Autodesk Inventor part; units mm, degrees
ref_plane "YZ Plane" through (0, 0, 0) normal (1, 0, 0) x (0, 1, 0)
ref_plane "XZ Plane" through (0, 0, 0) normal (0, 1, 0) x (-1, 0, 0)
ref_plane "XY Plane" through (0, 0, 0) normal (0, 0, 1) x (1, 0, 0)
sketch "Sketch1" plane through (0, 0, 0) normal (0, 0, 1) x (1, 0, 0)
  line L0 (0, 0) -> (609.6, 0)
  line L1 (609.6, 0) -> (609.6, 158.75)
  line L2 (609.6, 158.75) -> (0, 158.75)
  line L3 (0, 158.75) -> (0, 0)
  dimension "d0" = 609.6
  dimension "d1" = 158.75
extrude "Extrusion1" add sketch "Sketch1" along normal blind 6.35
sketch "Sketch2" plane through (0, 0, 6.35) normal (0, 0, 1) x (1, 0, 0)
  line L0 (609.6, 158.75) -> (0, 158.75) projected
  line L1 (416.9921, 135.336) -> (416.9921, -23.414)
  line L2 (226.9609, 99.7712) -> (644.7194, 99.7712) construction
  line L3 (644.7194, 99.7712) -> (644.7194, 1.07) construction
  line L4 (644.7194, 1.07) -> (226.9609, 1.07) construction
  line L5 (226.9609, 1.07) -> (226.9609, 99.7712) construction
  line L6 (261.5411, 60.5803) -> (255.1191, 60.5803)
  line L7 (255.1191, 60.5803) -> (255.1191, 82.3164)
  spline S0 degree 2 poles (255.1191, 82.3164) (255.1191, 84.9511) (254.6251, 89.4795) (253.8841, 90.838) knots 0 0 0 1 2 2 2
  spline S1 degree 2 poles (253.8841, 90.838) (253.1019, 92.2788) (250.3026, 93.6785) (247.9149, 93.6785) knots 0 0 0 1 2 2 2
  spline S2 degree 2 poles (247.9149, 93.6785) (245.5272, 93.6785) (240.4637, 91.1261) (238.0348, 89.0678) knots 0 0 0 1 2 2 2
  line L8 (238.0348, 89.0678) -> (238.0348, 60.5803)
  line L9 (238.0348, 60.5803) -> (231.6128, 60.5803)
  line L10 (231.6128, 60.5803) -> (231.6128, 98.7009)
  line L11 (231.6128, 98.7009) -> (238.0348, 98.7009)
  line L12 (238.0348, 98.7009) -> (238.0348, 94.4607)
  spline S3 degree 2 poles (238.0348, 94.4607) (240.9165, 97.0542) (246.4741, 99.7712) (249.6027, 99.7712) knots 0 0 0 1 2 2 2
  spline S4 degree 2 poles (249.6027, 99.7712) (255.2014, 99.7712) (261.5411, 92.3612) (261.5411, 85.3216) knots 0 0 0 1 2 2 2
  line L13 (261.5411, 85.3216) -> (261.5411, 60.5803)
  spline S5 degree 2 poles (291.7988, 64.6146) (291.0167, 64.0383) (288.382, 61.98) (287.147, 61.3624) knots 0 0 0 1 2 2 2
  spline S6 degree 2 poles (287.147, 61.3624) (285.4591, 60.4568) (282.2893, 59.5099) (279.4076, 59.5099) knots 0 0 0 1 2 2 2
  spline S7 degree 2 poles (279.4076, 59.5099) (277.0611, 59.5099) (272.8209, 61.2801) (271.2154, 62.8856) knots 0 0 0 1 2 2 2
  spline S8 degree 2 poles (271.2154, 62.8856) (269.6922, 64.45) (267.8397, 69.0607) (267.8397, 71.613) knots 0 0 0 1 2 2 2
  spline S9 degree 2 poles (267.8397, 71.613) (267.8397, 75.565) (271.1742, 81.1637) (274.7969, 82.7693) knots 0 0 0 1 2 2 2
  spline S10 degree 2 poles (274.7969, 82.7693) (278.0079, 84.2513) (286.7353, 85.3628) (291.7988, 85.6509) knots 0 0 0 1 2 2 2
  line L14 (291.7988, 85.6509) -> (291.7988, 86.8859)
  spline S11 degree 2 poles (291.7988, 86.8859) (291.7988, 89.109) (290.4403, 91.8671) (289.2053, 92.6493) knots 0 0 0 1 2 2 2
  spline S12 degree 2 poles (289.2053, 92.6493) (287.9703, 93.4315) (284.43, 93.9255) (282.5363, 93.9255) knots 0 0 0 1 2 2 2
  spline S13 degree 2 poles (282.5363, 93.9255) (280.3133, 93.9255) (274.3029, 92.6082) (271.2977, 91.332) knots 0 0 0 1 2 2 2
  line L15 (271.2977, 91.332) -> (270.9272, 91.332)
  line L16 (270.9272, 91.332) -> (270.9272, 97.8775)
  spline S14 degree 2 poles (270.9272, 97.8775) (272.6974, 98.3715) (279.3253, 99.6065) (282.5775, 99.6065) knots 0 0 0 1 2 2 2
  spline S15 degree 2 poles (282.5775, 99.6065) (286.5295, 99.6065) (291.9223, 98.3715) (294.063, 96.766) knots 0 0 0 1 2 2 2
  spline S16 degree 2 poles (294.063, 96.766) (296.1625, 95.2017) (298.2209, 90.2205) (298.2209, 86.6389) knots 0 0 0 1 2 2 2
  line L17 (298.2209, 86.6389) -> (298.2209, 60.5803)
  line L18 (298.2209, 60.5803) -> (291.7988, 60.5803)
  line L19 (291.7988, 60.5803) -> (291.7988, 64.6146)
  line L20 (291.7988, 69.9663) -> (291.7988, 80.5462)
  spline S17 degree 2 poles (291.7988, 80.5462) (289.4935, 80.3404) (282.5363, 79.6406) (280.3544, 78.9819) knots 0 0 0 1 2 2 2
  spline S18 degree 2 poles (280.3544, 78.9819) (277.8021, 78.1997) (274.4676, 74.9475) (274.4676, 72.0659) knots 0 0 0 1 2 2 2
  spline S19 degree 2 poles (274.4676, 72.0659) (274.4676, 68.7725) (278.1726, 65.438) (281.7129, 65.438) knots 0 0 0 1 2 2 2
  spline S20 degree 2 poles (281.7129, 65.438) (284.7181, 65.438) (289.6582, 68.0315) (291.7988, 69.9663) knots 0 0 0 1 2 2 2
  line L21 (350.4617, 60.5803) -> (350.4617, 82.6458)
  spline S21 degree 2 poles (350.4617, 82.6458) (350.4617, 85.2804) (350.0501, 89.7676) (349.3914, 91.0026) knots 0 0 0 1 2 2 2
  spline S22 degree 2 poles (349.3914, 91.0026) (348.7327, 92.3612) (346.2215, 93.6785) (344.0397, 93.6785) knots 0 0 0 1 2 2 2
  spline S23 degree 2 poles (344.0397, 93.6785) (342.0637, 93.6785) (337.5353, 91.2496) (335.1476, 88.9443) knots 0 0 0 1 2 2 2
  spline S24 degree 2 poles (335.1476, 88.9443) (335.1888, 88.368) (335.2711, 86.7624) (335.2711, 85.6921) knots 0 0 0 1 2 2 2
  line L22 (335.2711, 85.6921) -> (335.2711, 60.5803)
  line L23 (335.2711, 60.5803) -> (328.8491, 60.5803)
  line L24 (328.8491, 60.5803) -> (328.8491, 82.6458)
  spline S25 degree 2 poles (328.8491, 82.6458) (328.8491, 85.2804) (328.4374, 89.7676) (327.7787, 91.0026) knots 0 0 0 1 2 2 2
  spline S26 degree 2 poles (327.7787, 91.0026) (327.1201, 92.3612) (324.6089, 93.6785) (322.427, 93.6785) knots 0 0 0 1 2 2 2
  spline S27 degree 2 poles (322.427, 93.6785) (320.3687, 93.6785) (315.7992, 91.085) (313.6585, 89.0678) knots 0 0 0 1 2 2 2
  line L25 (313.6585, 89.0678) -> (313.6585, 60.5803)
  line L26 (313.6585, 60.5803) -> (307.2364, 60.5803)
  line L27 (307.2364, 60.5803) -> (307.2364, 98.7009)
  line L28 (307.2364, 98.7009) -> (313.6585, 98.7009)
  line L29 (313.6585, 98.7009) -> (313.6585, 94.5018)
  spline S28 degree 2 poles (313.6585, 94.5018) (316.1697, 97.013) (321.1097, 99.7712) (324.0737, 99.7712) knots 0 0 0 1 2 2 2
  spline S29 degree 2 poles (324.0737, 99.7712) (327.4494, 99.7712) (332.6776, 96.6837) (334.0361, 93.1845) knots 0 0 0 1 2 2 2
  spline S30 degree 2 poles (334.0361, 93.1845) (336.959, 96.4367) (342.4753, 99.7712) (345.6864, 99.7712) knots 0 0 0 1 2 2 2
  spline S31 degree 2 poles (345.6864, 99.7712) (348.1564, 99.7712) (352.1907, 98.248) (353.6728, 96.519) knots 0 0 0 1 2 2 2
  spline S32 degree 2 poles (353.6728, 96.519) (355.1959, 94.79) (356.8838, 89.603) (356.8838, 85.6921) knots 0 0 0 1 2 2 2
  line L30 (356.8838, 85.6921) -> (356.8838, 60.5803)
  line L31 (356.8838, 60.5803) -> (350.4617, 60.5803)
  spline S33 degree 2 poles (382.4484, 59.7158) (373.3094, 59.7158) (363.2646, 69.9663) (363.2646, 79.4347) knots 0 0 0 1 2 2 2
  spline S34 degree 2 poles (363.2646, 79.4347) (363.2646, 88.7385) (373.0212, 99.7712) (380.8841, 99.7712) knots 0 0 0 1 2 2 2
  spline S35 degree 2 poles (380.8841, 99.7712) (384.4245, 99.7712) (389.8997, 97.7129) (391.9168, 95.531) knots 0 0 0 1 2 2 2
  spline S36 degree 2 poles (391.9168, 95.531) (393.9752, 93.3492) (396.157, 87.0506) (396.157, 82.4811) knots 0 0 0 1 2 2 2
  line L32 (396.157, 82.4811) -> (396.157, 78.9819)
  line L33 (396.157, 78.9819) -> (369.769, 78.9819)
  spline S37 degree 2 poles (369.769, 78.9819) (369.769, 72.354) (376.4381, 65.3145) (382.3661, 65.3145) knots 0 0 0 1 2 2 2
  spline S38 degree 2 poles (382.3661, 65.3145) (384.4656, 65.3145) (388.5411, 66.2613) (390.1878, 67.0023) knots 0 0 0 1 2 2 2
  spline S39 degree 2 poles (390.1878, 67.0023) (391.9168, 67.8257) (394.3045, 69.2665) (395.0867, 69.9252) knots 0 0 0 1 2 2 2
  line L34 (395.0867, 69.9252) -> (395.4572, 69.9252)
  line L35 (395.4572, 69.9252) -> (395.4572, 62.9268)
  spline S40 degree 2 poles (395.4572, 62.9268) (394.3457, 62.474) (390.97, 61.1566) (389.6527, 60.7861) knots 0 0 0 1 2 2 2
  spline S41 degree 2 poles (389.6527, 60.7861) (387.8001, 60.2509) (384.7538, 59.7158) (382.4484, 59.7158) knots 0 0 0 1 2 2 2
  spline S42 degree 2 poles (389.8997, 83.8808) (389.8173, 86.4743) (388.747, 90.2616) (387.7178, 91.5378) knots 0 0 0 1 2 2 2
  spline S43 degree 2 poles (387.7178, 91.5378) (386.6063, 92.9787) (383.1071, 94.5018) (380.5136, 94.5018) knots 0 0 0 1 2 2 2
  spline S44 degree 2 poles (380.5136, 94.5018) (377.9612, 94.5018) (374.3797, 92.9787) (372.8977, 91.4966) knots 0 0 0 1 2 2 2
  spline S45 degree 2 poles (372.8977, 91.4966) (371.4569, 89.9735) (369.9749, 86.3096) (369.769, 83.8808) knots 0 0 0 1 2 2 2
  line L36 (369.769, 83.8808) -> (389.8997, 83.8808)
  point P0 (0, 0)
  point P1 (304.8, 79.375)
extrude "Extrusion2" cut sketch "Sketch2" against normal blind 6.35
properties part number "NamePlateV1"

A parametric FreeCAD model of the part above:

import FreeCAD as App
import Part
import Sketcher
from FreeCAD import Vector
Q = App.Units.Quantity

doc = App.newDocument("Part")
body = doc.addObject("PartDesign::Body", "Body")
body.AllowCompound = True

sketch1 = doc.addObject("Sketcher::SketchObject", "Sketch")
body.addObject(sketch1)
sketch1.AttachmentSupport = (doc.XY_Plane, [""])
sketch1.MapMode = "FlatFace"
sketch1.addGeometry([
    Part.LineSegment(Vector(0, 158.75, 0), Vector(0, 0, 0)),
    Part.LineSegment(Vector(0, 0, 0), Vector(609.6, 0, 0)),
    Part.LineSegment(Vector(609.6, 0, 0), Vector(609.6, 158.75, 0)),
    Part.LineSegment(Vector(609.6, 158.75, 0), Vector(0, 158.75, 0)),
], False)
sketch1.addConstraint([
    Sketcher.Constraint("Coincident", 0, 2, 1, 1),
    Sketcher.Constraint("Coincident", 1, 2, 2, 1),
    Sketcher.Constraint("Coincident", 2, 2, 3, 1),
    Sketcher.Constraint("Coincident", 3, 2, 0, 1),
    Sketcher.Constraint("Vertical", 0),
    Sketcher.Constraint("Horizontal", 1),
    Sketcher.Constraint("Vertical", 2),
    Sketcher.Constraint("Horizontal", 3),
    Sketcher.Constraint("Coincident", 0, 2, -1, 1),
    Sketcher.Constraint("DistanceX", 1, 1, 1, 2, Q("24 in")),
    Sketcher.Constraint("DistanceY", 0, 2, 0, 1, Q("6.25 in")),
])
pad1 = doc.addObject("PartDesign::Pad", "Pad")
body.addObject(pad1)
pad1.Profile = sketch1
pad1.Length = Q("0.25 in")

sketch2 = doc.addObject("Sketcher::SketchObject", "Sketch001")
body.addObject(sketch2)
sketch2.AttachmentSupport = (doc.XY_Plane, [""])
sketch2.MapMode = "FlatFace"
sketch2.AttachmentOffset = App.Placement(Vector(0, 0, 0.25 * 25.4), App.Rotation())
sketch2.addGeometry([
    Part.LineSegment(Vector(255.1191, 60.5803, 0), Vector(261.5411, 60.5803, 0)),
    Part.LineSegment(Vector(261.5411, 60.5803, 0), Vector(261.5411, 85.3216, 0)),
    Part.BSplineCurve([Vector(249.6027, 99.7712, 0), Vector(255.2014, 99.7712, 0), Vector(261.5411, 92.3612, 0), Vector(261.5411, 85.3216, 0)], [3, 1, 3], [0, 1, 2], False, 2, [1, 1, 1, 1], False),
    Part.BSplineCurve([Vector(238.0348, 94.4607, 0), Vector(240.9165, 97.0542, 0), Vector(246.4741, 99.7712, 0), Vector(249.6027, 99.7712, 0)], [3, 1, 3], [0, 1, 2], False, 2, [1, 1, 1, 1], False),
    Part.LineSegment(Vector(238.0348, 94.4607, 0), Vector(238.0348, 98.7009, 0)),
    Part.LineSegment(Vector(238.0348, 98.7009, 0), Vector(231.6128, 98.7009, 0)),
    Part.LineSegment(Vector(231.6128, 98.7009, 0), Vector(231.6128, 60.5803, 0)),
    Part.LineSegment(Vector(231.6128, 60.5803, 0), Vector(238.0348, 60.5803, 0)),
    Part.LineSegment(Vector(238.0348, 60.5803, 0), Vector(238.0348, 89.0678, 0)),
    Part.BSplineCurve([Vector(247.9149, 93.6785, 0), Vector(245.5272, 93.6785, 0), Vector(240.4637, 91.1261, 0), Vector(238.0348, 89.0678, 0)], [3, 1, 3], [0, 1, 2], False, 2, [1, 1, 1, 1], False),
    Part.BSplineCurve([Vector(253.8841, 90.838, 0), Vector(253.1019, 92.2788, 0), Vector(250.3026, 93.6785, 0), Vector(247.9149, 93.6785, 0)], [3, 1, 3], [0, 1, 2], False, 2, [1, 1, 1, 1], False),
    Part.BSplineCurve([Vector(255.1191, 82.3164, 0), Vector(255.1191, 84.9511, 0), Vector(254.6251, 89.4795, 0), Vector(253.8841, 90.838, 0)], [3, 1, 3], [0, 1, 2], False, 2, [1, 1, 1, 1], False),
    Part.LineSegment(Vector(255.1191, 82.3164, 0), Vector(255.1191, 60.5803, 0)),
    Part.BSplineCurve([Vector(291.7988, 64.6146, 0), Vector(291.0167, 64.0383, 0), Vector(288.382, 61.98, 0), Vector(287.147, 61.3624, 0)], [3, 1, 3], [0, 1, 2], False, 2, [1, 1, 1, 1], False),
    Part.LineSegment(Vector(291.7988, 64.6146, 0), Vector(291.7988, 60.5803, 0)),
    Part.LineSegment(Vector(291.7988, 60.5803, 0), Vector(298.2209, 60.5803, 0)),
    Part.LineSegment(Vector(298.2209, 60.5803, 0), Vector(298.2209, 86.6389, 0)),
    Part.BSplineCurve([Vector(294.063, 96.766, 0), Vector(296.1625, 95.2017, 0), Vector(298.2209, 90.2205, 0), Vector(298.2209, 86.6389, 0)], [3, 1, 3], [0, 1, 2], False, 2, [1, 1, 1, 1], False),
    Part.BSplineCurve([Vector(282.5775, 99.6065, 0), Vector(286.5295, 99.6065, 0), Vector(291.9223, 98.3715, 0), Vector(294.063, 96.766, 0)], [3, 1, 3], [0, 1, 2], False, 2, [1, 1, 1, 1], False),
    Part.BSplineCurve([Vector(270.9272, 97.8775, 0), Vector(272.6974, 98.3715, 0), Vector(279.3253, 99.6065, 0), Vector(282.5775, 99.6065, 0)], [3, 1, 3], [0, 1, 2], False, 2, [1, 1, 1, 1], False),
    Part.LineSegment(Vector(270.9272, 97.8775, 0), Vector(270.9272, 91.332, 0)),
    Part.LineSegment(Vector(270.9272, 91.332, 0), Vector(271.2977, 91.332, 0)),
    Part.BSplineCurve([Vector(282.5363, 93.9255, 0), Vector(280.3133, 93.9255, 0), Vector(274.3029, 92.6082, 0), Vector(271.2977, 91.332, 0)], [3, 1, 3], [0, 1, 2], False, 2, [1, 1, 1, 1], False),
    Part.BSplineCurve([Vector(289.2053, 92.6493, 0), Vector(287.9703, 93.4315, 0), Vector(284.43, 93.9255, 0), Vector(282.5363, 93.9255, 0)], [3, 1, 3], [0, 1, 2], False, 2, [1, 1, 1, 1], False),
    Part.BSplineCurve([Vector(291.7988, 86.8859, 0), Vector(291.7988, 89.109, 0), Vector(290.4403, 91.8671, 0), Vector(289.2053, 92.6493, 0)], [3, 1, 3], [0, 1, 2], False, 2, [1, 1, 1, 1], False),
    Part.LineSegment(Vector(291.7988, 86.8859, 0), Vector(291.7988, 85.6509, 0)),
    Part.BSplineCurve([Vector(274.7969, 82.7693, 0), Vector(278.0079, 84.2513, 0), Vector(286.7353, 85.3628, 0), Vector(291.7988, 85.6509, 0)], [3, 1, 3], [0, 1, 2], False, 2, [1, 1, 1, 1], False),
    Part.BSplineCurve([Vector(267.8397, 71.613, 0), Vector(267.8397, 75.565, 0), Vector(271.1742, 81.1637, 0), Vector(274.7969, 82.7693, 0)], [3, 1, 3], [0, 1, 2], False, 2, [1, 1, 1, 1], False),
    Part.BSplineCurve([Vector(271.2154, 62.8856, 0), Vector(269.6922, 64.45, 0), Vector(267.8397, 69.0607, 0), Vector(267.8397, 71.613, 0)], [3, 1, 3], [0, 1, 2], False, 2, [1, 1, 1, 1], False),
    Part.BSplineCurve([Vector(279.4076, 59.5099, 0), Vector(277.0611, 59.5099, 0), Vector(272.8209, 61.2801, 0), Vector(271.2154, 62.8856, 0)], [3, 1, 3], [0, 1, 2], False, 2, [1, 1, 1, 1], False),
    Part.BSplineCurve([Vector(287.147, 61.3624, 0), Vector(285.4591, 60.4568, 0), Vector(282.2893, 59.5099, 0), Vector(279.4076, 59.5099, 0)], [3, 1, 3], [0, 1, 2], False, 2, [1, 1, 1, 1], False),
    Part.LineSegment(Vector(291.7988, 80.5462, 0), Vector(291.7988, 69.9663, 0)),
    Part.BSplineCurve([Vector(281.7129, 65.438, 0), Vector(284.7181, 65.438, 0), Vector(289.6582, 68.0315, 0), Vector(291.7988, 69.9663, 0)], [3, 1, 3], [0, 1, 2], False, 2, [1, 1, 1, 1], False),
    Part.BSplineCurve([Vector(274.4676, 72.0659, 0), Vector(274.4676, 68.7725, 0), Vector(278.1726, 65.438, 0), Vector(281.7129, 65.438, 0)], [3, 1, 3], [0, 1, 2], False, 2, [1, 1, 1, 1], False),
    Part.BSplineCurve([Vector(280.3544, 78.9819, 0), Vector(277.8021, 78.1997, 0), Vector(274.4676, 74.9475, 0), Vector(274.4676, 72.0659, 0)], [3, 1, 3], [0, 1, 2], False, 2, [1, 1, 1, 1], False),
    Part.BSplineCurve([Vector(291.7988, 80.5462, 0), Vector(289.4935, 80.3404, 0), Vector(282.5363, 79.6406, 0), Vector(280.3544, 78.9819, 0)], [3, 1, 3], [0, 1, 2], False, 2, [1, 1, 1, 1], False),
    Part.LineSegment(Vector(350.4617, 82.6458, 0), Vector(350.4617, 60.5803, 0)),
    Part.LineSegment(Vector(350.4617, 60.5803, 0), Vector(356.8838, 60.5803, 0)),
    Part.LineSegment(Vector(356.8838, 60.5803, 0), Vector(356.8838, 85.6921, 0)),
    Part.BSplineCurve([Vector(353.6728, 96.519, 0), Vector(355.1959, 94.79, 0), Vector(356.8838, 89.603, 0), Vector(356.8838, 85.6921, 0)], [3, 1, 3], [0, 1, 2], False, 2, [1, 1, 1, 1], False),
    Part.BSplineCurve([Vector(345.6864, 99.7712, 0), Vector(348.1564, 99.7712, 0), Vector(352.1907, 98.248, 0), Vector(353.6728, 96.519, 0)], [3, 1, 3], [0, 1, 2], False, 2, [1, 1, 1, 1], False),
    Part.BSplineCurve([Vector(334.0361, 93.1845, 0), Vector(336.959, 96.4367, 0), Vector(342.4753, 99.7712, 0), Vector(345.6864, 99.7712, 0)], [3, 1, 3], [0, 1, 2], False, 2, [1, 1, 1, 1], False),
    Part.BSplineCurve([Vector(324.0737, 99.7712, 0), Vector(327.4494, 99.7712, 0), Vector(332.6776, 96.6837, 0), Vector(334.0361, 93.1845, 0)], [3, 1, 3], [0, 1, 2], False, 2, [1, 1, 1, 1], False),
    Part.BSplineCurve([Vector(313.6585, 94.5018, 0), Vector(316.1697, 97.013, 0), Vector(321.1097, 99.7712, 0), Vector(324.0737, 99.7712, 0)], [3, 1, 3], [0, 1, 2], False, 2, [1, 1, 1, 1], False),
    Part.LineSegment(Vector(313.6585, 94.5018, 0), Vector(313.6585, 98.7009, 0)),
    Part.LineSegment(Vector(313.6585, 98.7009, 0), Vector(307.2364, 98.7009, 0)),
    Part.LineSegment(Vector(307.2364, 98.7009, 0), Vector(307.2364, 60.5803, 0)),
    Part.LineSegment(Vector(307.2364, 60.5803, 0), Vector(313.6585, 60.5803, 0)),
    Part.LineSegment(Vector(313.6585, 60.5803, 0), Vector(313.6585, 89.0678, 0)),
    Part.BSplineCurve([Vector(322.427, 93.6785, 0), Vector(320.3687, 93.6785, 0), Vector(315.7992, 91.085, 0), Vector(313.6585, 89.0678, 0)], [3, 1, 3], [0, 1, 2], False, 2, [1, 1, 1, 1], False),
    Part.BSplineCurve([Vector(327.7787, 91.0026, 0), Vector(327.1201, 92.3612, 0), Vector(324.6089, 93.6785, 0), Vector(322.427, 93.6785, 0)], [3, 1, 3], [0, 1, 2], False, 2, [1, 1, 1, 1], False),
    Part.BSplineCurve([Vector(328.8491, 82.6458, 0), Vector(328.8491, 85.2804, 0), Vector(328.4374, 89.7676, 0), Vector(327.7787, 91.0026, 0)], [3, 1, 3], [0, 1, 2], False, 2, [1, 1, 1, 1], False),
    Part.LineSegment(Vector(328.8491, 82.6458, 0), Vector(328.8491, 60.5803, 0)),
    Part.LineSegment(Vector(328.8491, 60.5803, 0), Vector(335.2711, 60.5803, 0)),
    Part.LineSegment(Vector(335.2711, 60.5803, 0), Vector(335.2711, 85.6921, 0)),
    Part.BSplineCurve([Vector(335.1476, 88.9443, 0), Vector(335.1888, 88.368, 0), Vector(335.2711, 86.7624, 0), Vector(335.2711, 85.6921, 0)], [3, 1, 3], [0, 1, 2], False, 2, [1, 1, 1, 1], False),
    Part.BSplineCurve([Vector(344.0397, 93.6785, 0), Vector(342.0637, 93.6785, 0), Vector(337.5353, 91.2496, 0), Vector(335.1476, 88.9443, 0)], [3, 1, 3], [0, 1, 2], False, 2, [1, 1, 1, 1], False),
    Part.BSplineCurve([Vector(349.3914, 91.0026, 0), Vector(348.7327, 92.3612, 0), Vector(346.2215, 93.6785, 0), Vector(344.0397, 93.6785, 0)], [3, 1, 3], [0, 1, 2], False, 2, [1, 1, 1, 1], False),
    Part.BSplineCurve([Vector(350.4617, 82.6458, 0), Vector(350.4617, 85.2804, 0), Vector(350.0501, 89.7676, 0), Vector(349.3914, 91.0026, 0)], [3, 1, 3], [0, 1, 2], False, 2, [1, 1, 1, 1], False),
    Part.BSplineCurve([Vector(382.4484, 59.7158, 0), Vector(373.3094, 59.7158, 0), Vector(363.2646, 69.9663, 0), Vector(363.2646, 79.4347, 0)], [3, 1, 3], [0, 1, 2], False, 2, [1, 1, 1, 1], False),
    Part.BSplineCurve([Vector(389.6527, 60.7861, 0), Vector(387.8001, 60.2509, 0), Vector(384.7538, 59.7158, 0), Vector(382.4484, 59.7158, 0)], [3, 1, 3], [0, 1, 2], False, 2, [1, 1, 1, 1], False),
    Part.BSplineCurve([Vector(395.4572, 62.9268, 0), Vector(394.3457, 62.474, 0), Vector(390.97, 61.1566, 0), Vector(389.6527, 60.7861, 0)], [3, 1, 3], [0, 1, 2], False, 2, [1, 1, 1, 1], False),
    Part.LineSegment(Vector(395.4572, 62.9268, 0), Vector(395.4572, 69.9252, 0)),
    Part.LineSegment(Vector(395.4572, 69.9252, 0), Vector(395.0867, 69.9252, 0)),
    Part.BSplineCurve([Vector(390.1878, 67.0023, 0), Vector(391.9168, 67.8257, 0), Vector(394.3045, 69.2665, 0), Vector(395.0867, 69.9252, 0)], [3, 1, 3], [0, 1, 2], False, 2, [1, 1, 1, 1], False),
    Part.BSplineCurve([Vector(382.3661, 65.3145, 0), Vector(384.4656, 65.3145, 0), Vector(388.5411, 66.2613, 0), Vector(390.1878, 67.0023, 0)], [3, 1, 3], [0, 1, 2], False, 2, [1, 1, 1, 1], False),
    Part.BSplineCurve([Vector(369.769, 78.9819, 0), Vector(369.769, 72.354, 0), Vector(376.4381, 65.3145, 0), Vector(382.3661, 65.3145, 0)], [3, 1, 3], [0, 1, 2], False, 2, [1, 1, 1, 1], False),
    Part.LineSegment(Vector(369.769, 78.9819, 0), Vector(396.157, 78.9819, 0)),
    Part.LineSegment(Vector(396.157, 78.9819, 0), Vector(396.157, 82.4811, 0)),
    Part.BSplineCurve([Vector(391.9168, 95.531, 0), Vector(393.9752, 93.3492, 0), Vector(396.157, 87.0506, 0), Vector(396.157, 82.4811, 0)], [3, 1, 3], [0, 1, 2], False, 2, [1, 1, 1, 1], False),
    Part.BSplineCurve([Vector(380.8841, 99.7712, 0), Vector(384.4245, 99.7712, 0), Vector(389.8997, 97.7129, 0), Vector(391.9168, 95.531, 0)], [3, 1, 3], [0, 1, 2], False, 2, [1, 1, 1, 1], False),
    Part.BSplineCurve([Vector(363.2646, 79.4347, 0), Vector(363.2646, 88.7385, 0), Vector(373.0212, 99.7712, 0), Vector(380.8841, 99.7712, 0)], [3, 1, 3], [0, 1, 2], False, 2, [1, 1, 1, 1], False),
    Part.BSplineCurve([Vector(389.8997, 83.8808, 0), Vector(389.8173, 86.4743, 0), Vector(388.747, 90.2616, 0), Vector(387.7178, 91.5378, 0)], [3, 1, 3], [0, 1, 2], False, 2, [1, 1, 1, 1], False),
    Part.LineSegment(Vector(389.8997, 83.8808, 0), Vector(369.769, 83.8808, 0)),
    Part.BSplineCurve([Vector(372.8977, 91.4966, 0), Vector(371.4569, 89.9735, 0), Vector(369.9749, 86.3096, 0), Vector(369.769, 83.8808, 0)], [3, 1, 3], [0, 1, 2], False, 2, [1, 1, 1, 1], False),
    Part.BSplineCurve([Vector(380.5136, 94.5018, 0), Vector(377.9612, 94.5018, 0), Vector(374.3797, 92.9787, 0), Vector(372.8977, 91.4966, 0)], [3, 1, 3], [0, 1, 2], False, 2, [1, 1, 1, 1], False),
    Part.BSplineCurve([Vector(387.7178, 91.5378, 0), Vector(386.6063, 92.9787, 0), Vector(383.1071, 94.5018, 0), Vector(380.5136, 94.5018, 0)], [3, 1, 3], [0, 1, 2], False, 2, [1, 1, 1, 1], False),
], False)
sketch2.addConstraint([
    Sketcher.Constraint("Block", 2),
    Sketcher.Constraint("Block", 3),
    Sketcher.Constraint("Block", 9),
    Sketcher.Constraint("Block", 10),
    Sketcher.Constraint("Block", 11),
    Sketcher.Constraint("Block", 13),
    Sketcher.Constraint("Block", 17),
    Sketcher.Constraint("Block", 18),
    Sketcher.Constraint("Block", 19),
    Sketcher.Constraint("Block", 22),
    Sketcher.Constraint("Block", 23),
    Sketcher.Constraint("Block", 24),
    Sketcher.Constraint("Block", 26),
    Sketcher.Constraint("Block", 27),
    Sketcher.Constraint("Block", 28),
    Sketcher.Constraint("Block", 29),
    Sketcher.Constraint("Block", 30),
    Sketcher.Constraint("Block", 32),
    Sketcher.Constraint("Block", 33),
    Sketcher.Constraint("Block", 34),
    Sketcher.Constraint("Block", 35),
    Sketcher.Constraint("Block", 39),
    Sketcher.Constraint("Block", 40),
    Sketcher.Constraint("Block", 41),
    Sketcher.Constraint("Block", 42),
    Sketcher.Constraint("Block", 43),
    Sketcher.Constraint("Block", 49),
    Sketcher.Constraint("Block", 50),
    Sketcher.Constraint("Block", 51),
    Sketcher.Constraint("Block", 55),
    Sketcher.Constraint("Block", 56),
    Sketcher.Constraint("Block", 57),
    Sketcher.Constraint("Block", 58),
    Sketcher.Constraint("Block", 59),
    Sketcher.Constraint("Block", 60),
    Sketcher.Constraint("Block", 61),
    Sketcher.Constraint("Block", 64),
    Sketcher.Constraint("Block", 65),
    Sketcher.Constraint("Block", 66),
    Sketcher.Constraint("Block", 69),
    Sketcher.Constraint("Block", 70),
    Sketcher.Constraint("Block", 71),
    Sketcher.Constraint("Block", 72),
    Sketcher.Constraint("Block", 74),
    Sketcher.Constraint("Block", 75),
    Sketcher.Constraint("Block", 76),
    Sketcher.Constraint("Coincident", 0, 2, 1, 1),
    Sketcher.Constraint("Coincident", 1, 2, 2, 2),
    Sketcher.Constraint("Coincident", 3, 1, 4, 1),
    Sketcher.Constraint("Coincident", 4, 2, 5, 1),
    Sketcher.Constraint("Coincident", 5, 2, 6, 1),
    Sketcher.Constraint("Coincident", 6, 2, 7, 1),
    Sketcher.Constraint("Coincident", 7, 2, 8, 1),
    Sketcher.Constraint("Coincident", 8, 2, 9, 2),
    Sketcher.Constraint("Coincident", 11, 1, 12, 1),
    Sketcher.Constraint("Coincident", 12, 2, 0, 1),
    Sketcher.Constraint("Coincident", 13, 1, 14, 1),
    Sketcher.Constraint("Coincident", 14, 2, 15, 1),
    Sketcher.Constraint("Coincident", 15, 2, 16, 1),
    Sketcher.Constraint("Coincident", 16, 2, 17, 2),
    Sketcher.Constraint("Coincident", 19, 1, 20, 1),
    Sketcher.Constraint("Coincident", 20, 2, 21, 1),
    Sketcher.Constraint("Coincident", 21, 2, 22, 2),
    Sketcher.Constraint("Coincident", 24, 1, 25, 1),
    Sketcher.Constraint("Coincident", 25, 2, 26, 2),
    Sketcher.Constraint("Coincident", 31, 2, 32, 2),
    Sketcher.Constraint("Coincident", 35, 1, 31, 1),
    Sketcher.Constraint("Coincident", 36, 2, 37, 1),
    Sketcher.Constraint("Coincident", 37, 2, 38, 1),
    Sketcher.Constraint("Coincident", 38, 2, 39, 2),
    Sketcher.Constraint("Coincident", 43, 1, 44, 1),
    Sketcher.Constraint("Coincident", 44, 2, 45, 1),
    Sketcher.Constraint("Coincident", 45, 2, 46, 1),
    Sketcher.Constraint("Coincident", 46, 2, 47, 1),
    Sketcher.Constraint("Coincident", 47, 2, 48, 1),
    Sketcher.Constraint("Coincident", 48, 2, 49, 2),
    Sketcher.Constraint("Coincident", 51, 1, 52, 1),
    Sketcher.Constraint("Coincident", 52, 2, 53, 1),
    Sketcher.Constraint("Coincident", 53, 2, 54, 1),
    Sketcher.Constraint("Coincident", 54, 2, 55, 2),
    Sketcher.Constraint("Coincident", 58, 1, 36, 1),
    Sketcher.Constraint("Coincident", 61, 1, 62, 1),
    Sketcher.Constraint("Coincident", 62, 2, 63, 1),
    Sketcher.Constraint("Coincident", 63, 2, 64, 2),
    Sketcher.Constraint("Coincident", 66, 1, 67, 1),
    Sketcher.Constraint("Coincident", 67, 2, 68, 1),
    Sketcher.Constraint("Coincident", 68, 2, 69, 2),
    Sketcher.Constraint("Coincident", 72, 1, 73, 1),
    Sketcher.Constraint("Coincident", 73, 2, 74, 2),
    Sketcher.Constraint("Horizontal", 0),
    Sketcher.Constraint("Vertical", 1),
    Sketcher.Constraint("Vertical", 4),
    Sketcher.Constraint("Horizontal", 5),
    Sketcher.Constraint("Vertical", 6),
    Sketcher.Constraint("Horizontal", 7),
    Sketcher.Constraint("Vertical", 8),
    Sketcher.Constraint("Vertical", 12),
    Sketcher.Constraint("Vertical", 14),
    Sketcher.Constraint("Horizontal", 15),
    Sketcher.Constraint("Vertical", 16),
    Sketcher.Constraint("Vertical", 20),
    Sketcher.Constraint("Horizontal", 21),
    Sketcher.Constraint("Vertical", 36),
    Sketcher.Constraint("Horizontal", 37),
    Sketcher.Constraint("Vertical", 38),
    Sketcher.Constraint("Vertical", 44),
    Sketcher.Constraint("Horizontal", 45),
    Sketcher.Constraint("Vertical", 46),
    Sketcher.Constraint("Horizontal", 47),
    Sketcher.Constraint("Vertical", 48),
    Sketcher.Constraint("Vertical", 52),
    Sketcher.Constraint("Horizontal", 53),
    Sketcher.Constraint("Vertical", 54),
    Sketcher.Constraint("Vertical", 62),
    Sketcher.Constraint("Horizontal", 63),
    Sketcher.Constraint("Horizontal", 67),
    Sketcher.Constraint("Vertical", 68),
    Sketcher.Constraint("DistanceY", 6, 2, 6, 1, Q("1.5008 in")),
    Sketcher.Constraint("DistanceY", 46, 2, 46, 1, Q("1.5008 in")),
    Sketcher.Constraint("DistanceX", 5, 2, 5, 1, 6.422),
    Sketcher.Constraint("DistanceX", 45, 2, 45, 1, 6.422),
    Sketcher.Constraint("DistanceY", 1, 1, 1, 2, 24.7413),
    Sketcher.Constraint("DistanceY", 4, 1, 4, 2, 4.2402),
    Sketcher.Constraint("DistanceY", 14, 2, 14, 1, 4.0343),
    Sketcher.Constraint("DistanceY", 36, 2, 36, 1, 22.0655),
    Sketcher.Constraint("DistanceY", 44, 1, 44, 2, 4.199),
    Sketcher.Constraint("DistanceY", 52, 2, 52, 1, 22.0655),
])
pocket1 = doc.addObject("PartDesign::Pocket", "Pocket")
body.addObject(pocket1)
pocket1.Profile = sketch2
pocket1.Length = Q("0.25 in")

doc.recompute()
